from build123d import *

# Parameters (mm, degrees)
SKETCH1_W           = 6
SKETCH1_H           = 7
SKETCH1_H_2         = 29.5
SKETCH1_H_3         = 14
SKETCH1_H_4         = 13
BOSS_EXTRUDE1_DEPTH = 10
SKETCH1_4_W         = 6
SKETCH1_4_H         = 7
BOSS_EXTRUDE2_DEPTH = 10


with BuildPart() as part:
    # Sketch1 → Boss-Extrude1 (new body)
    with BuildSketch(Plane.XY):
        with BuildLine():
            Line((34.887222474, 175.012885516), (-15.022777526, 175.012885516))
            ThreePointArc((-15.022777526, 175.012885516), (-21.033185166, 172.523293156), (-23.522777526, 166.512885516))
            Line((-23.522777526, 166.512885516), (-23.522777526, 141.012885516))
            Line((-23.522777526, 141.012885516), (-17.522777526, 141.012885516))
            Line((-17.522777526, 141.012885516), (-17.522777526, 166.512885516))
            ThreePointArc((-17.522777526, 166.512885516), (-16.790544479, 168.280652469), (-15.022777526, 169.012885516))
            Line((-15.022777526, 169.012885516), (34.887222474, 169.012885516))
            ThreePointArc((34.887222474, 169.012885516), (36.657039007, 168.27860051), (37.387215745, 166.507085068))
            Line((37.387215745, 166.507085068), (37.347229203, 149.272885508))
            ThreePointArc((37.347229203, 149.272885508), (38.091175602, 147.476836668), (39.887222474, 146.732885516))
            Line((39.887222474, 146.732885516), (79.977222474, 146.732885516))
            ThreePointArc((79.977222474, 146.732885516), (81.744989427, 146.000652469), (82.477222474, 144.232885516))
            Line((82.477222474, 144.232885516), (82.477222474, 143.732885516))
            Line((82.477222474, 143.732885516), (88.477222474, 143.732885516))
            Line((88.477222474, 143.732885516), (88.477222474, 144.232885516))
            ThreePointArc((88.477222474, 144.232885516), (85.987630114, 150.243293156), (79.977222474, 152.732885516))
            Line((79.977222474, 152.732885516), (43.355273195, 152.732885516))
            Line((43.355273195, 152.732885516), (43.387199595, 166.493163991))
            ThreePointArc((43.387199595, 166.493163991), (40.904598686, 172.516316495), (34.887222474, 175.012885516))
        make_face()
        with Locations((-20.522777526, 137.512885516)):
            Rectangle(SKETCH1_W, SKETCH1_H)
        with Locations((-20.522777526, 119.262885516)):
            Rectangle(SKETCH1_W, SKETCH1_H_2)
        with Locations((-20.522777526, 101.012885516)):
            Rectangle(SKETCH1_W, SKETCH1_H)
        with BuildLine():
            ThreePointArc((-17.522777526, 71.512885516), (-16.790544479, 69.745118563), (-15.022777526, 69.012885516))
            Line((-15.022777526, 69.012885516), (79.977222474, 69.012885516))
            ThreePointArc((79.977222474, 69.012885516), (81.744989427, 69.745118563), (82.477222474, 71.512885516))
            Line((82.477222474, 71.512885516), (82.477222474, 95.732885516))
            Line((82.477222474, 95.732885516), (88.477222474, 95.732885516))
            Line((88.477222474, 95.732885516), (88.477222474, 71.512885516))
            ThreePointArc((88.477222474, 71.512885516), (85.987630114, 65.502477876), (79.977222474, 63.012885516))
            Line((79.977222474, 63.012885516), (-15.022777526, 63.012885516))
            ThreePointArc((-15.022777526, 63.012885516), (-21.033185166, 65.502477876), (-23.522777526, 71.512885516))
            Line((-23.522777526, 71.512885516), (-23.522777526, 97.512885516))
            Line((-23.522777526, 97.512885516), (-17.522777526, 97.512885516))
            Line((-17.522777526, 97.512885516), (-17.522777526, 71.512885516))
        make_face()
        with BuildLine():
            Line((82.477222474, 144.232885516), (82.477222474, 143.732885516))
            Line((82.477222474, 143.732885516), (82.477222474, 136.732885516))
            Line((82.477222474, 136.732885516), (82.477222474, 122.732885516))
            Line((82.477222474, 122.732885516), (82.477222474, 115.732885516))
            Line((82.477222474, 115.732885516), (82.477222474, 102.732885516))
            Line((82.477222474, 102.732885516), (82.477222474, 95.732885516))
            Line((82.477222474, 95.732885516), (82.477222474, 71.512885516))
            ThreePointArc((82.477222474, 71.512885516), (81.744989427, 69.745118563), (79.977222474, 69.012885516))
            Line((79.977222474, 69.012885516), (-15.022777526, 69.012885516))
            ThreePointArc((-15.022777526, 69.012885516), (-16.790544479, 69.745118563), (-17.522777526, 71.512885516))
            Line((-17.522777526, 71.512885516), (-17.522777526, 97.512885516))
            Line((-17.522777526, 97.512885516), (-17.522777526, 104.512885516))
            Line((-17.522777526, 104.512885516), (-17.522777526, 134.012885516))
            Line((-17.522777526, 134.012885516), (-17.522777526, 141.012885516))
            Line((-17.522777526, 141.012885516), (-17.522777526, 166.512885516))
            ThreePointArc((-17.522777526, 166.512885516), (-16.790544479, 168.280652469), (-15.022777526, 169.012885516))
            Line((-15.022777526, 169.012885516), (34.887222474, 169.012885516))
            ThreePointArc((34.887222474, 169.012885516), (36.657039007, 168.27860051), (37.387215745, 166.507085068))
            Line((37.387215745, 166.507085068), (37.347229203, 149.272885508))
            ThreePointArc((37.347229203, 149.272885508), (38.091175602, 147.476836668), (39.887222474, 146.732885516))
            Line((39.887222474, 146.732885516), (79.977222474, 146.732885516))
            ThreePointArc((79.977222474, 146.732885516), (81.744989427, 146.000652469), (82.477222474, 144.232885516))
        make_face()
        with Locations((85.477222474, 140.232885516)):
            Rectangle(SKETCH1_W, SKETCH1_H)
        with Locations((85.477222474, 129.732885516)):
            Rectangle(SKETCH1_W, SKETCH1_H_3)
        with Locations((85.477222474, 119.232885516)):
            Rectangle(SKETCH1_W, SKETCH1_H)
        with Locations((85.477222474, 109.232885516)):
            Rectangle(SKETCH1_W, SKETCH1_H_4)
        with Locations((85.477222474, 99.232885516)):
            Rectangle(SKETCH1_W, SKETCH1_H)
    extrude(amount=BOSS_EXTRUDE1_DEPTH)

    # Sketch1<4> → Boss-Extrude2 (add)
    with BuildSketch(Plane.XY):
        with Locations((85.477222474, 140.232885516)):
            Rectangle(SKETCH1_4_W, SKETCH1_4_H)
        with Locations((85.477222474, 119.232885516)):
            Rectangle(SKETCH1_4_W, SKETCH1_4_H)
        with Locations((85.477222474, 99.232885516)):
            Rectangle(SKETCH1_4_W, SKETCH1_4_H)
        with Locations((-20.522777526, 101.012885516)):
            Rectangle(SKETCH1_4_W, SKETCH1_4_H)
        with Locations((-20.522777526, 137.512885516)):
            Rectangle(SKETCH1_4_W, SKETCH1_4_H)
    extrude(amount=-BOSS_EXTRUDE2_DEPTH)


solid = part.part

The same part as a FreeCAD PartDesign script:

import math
import FreeCAD as App
import Part
import Sketcher
from FreeCAD import Vector
Q = App.Units.Quantity


def add_polygon(sketch, points):
    """Adds a closed chain of lines whose ends are joined by coincident constraints."""
    first, n = sketch.GeometryCount, len(points)
    for a, b in zip(points, points[1:] + points[:1]):
        sketch.addGeometry(Part.LineSegment(App.Vector(*a, 0), App.Vector(*b, 0)), False)
    for i in range(n):
        sketch.addConstraint(Sketcher.Constraint("Coincident", first + i, 2, first + (i + 1) % n, 1))

doc = App.newDocument("Part")
body = doc.addObject("PartDesign::Body", "Body")

sketch1 = body.newObject("Sketcher::SketchObject", "Sketch")
sketch1.AttachmentSupport = (doc.getObject("XY_Plane"), [""])
sketch1.MapMode = "FlatFace"
sketch1.addGeometry(Part.LineSegment(Vector(35, 175, 0), Vector(-15, 175, 0)), False)
sketch1.addGeometry(Part.ArcOfCircle(Part.Circle(Vector(-15, 167, 0), Vector(0, 0, 1), 8), math.radians(90), math.radians(180)), False)
sketch1.addGeometry(Part.LineSegment(Vector(-24, 167, 0), Vector(-24, 72, 0)), False)
sketch1.addGeometry(Part.ArcOfCircle(Part.Circle(Vector(-15, 72, 0), Vector(0, 0, 1), 8), math.radians(180), math.radians(270)), False)
sketch1.addGeometry(Part.LineSegment(Vector(-15, 63, 0), Vector(80, 63, 0)), False)
sketch1.addGeometry(Part.ArcOfCircle(Part.Circle(Vector(80, 72, 0), Vector(0, 0, 1), 8), math.radians(-90), math.radians(0)), False)
sketch1.addGeometry(Part.LineSegment(Vector(88, 72, 0), Vector(88, 144, 0)), False)
sketch1.addGeometry(Part.ArcOfCircle(Part.Circle(Vector(80, 144, 0), Vector(0, 0, 1), 8), math.radians(0), math.radians(90)), False)
sketch1.addGeometry(Part.LineSegment(Vector(80, 153, 0), Vector(43, 153, 0)), False)
sketch1.addGeometry(Part.LineSegment(Vector(43, 153, 0), Vector(43, 166, 0)), False)
sketch1.addGeometry(Part.ArcOfCircle(Part.Circle(Vector(35, 167, 0), Vector(0, 0, 1), 8), math.radians(0), math.radians(90)), False)
sketch1.addConstraint(Sketcher.Constraint("Tangent", 0, 2, 1, 1))
sketch1.addConstraint(Sketcher.Constraint("Tangent", 1, 2, 2, 1))
sketch1.addConstraint(Sketcher.Constraint("Tangent", 2, 2, 3, 1))
sketch1.addConstraint(Sketcher.Constraint("Tangent", 3, 2, 4, 1))
sketch1.addConstraint(Sketcher.Constraint("Tangent", 4, 2, 5, 1))
sketch1.addConstraint(Sketcher.Constraint("Tangent", 5, 2, 6, 1))
sketch1.addConstraint(Sketcher.Constraint("Tangent", 6, 2, 7, 1))
sketch1.addConstraint(Sketcher.Constraint("Tangent", 7, 2, 8, 1))
sketch1.addConstraint(Sketcher.Constraint("Coincident", 8, 2, 9, 1))
sketch1.addConstraint(Sketcher.Constraint("Tangent", 9, 2, 10, 1))
sketch1.addConstraint(Sketcher.Constraint("Tangent", 10, 2, 0, 1))
sketch1.addConstraint(Sketcher.Constraint("Horizontal", 0))
sketch1.addConstraint(Sketcher.Constraint("Vertical", 2))
sketch1.addConstraint(Sketcher.Constraint("Horizontal", 4))
sketch1.addConstraint(Sketcher.Constraint("Vertical", 6))
sketch1.addConstraint(Sketcher.Constraint("Horizontal", 8))
sketch1.addConstraint(Sketcher.Constraint("Equal", 1, 3))
sketch1.addConstraint(Sketcher.Constraint("Equal", 3, 5))
sketch1.addConstraint(Sketcher.Constraint("Equal", 5, 7))
sketch1.addConstraint(Sketcher.Constraint("Equal", 7, 10))
sketch1.addConstraint(Sketcher.Constraint("Equal", 4, 2))
sketch1.addConstraint(Sketcher.Constraint("Radius", 1, Q("8.5 mm")))
sketch1.addConstraint(Sketcher.Constraint("DistanceX", 4, 1, 4, 2, Q("95 mm")))
sketch1.addConstraint(Sketcher.Constraint("DistanceX", 0, 2, 0, 1, Q("49.91 mm")))
sketch1.addConstraint(Sketcher.Constraint("DistanceY", 6, 1, 6, 2, Q("72.72 mm")))
sketch1.addConstraint(Sketcher.Constraint("DistanceX", 8, 2, 8, 1, Q("36.621949 mm")))
sketch1.addConstraint(Sketcher.Constraint("DistanceX", -1, 1, 9, 2, Q("43.3872 mm")))
sketch1.addConstraint(Sketcher.Constraint("DistanceY", -1, 1, 1, 3, Q("166.512886 mm")))
pad1 = body.newObject("PartDesign::Pad", "Pad")
pad1.Profile = sketch1
pad1.Length = 10

sketch2 = body.newObject("Sketcher::SketchObject", "Sketch001")
sketch2.AttachmentSupport = (doc.getObject("XY_Plane"), [""])
sketch2.MapMode = "FlatFace"
add_polygon(sketch2, [(82, 144), (82, 137), (88, 137), (88, 144)])
add_polygon(sketch2, [(82, 123), (82, 116), (88, 116), (88, 123)])
add_polygon(sketch2, [(82, 103), (82, 96), (88, 96), (88, 103)])
add_polygon(sketch2, [(-24, 105), (-24, 98), (-18, 98), (-18, 105)])
add_polygon(sketch2, [(-24, 141), (-24, 134), (-18, 134), (-18, 141)])
sketch2.addConstraint(Sketcher.Constraint("Vertical", 0))
sketch2.addConstraint(Sketcher.Constraint("Horizontal", 1))
sketch2.addConstraint(Sketcher.Constraint("Vertical", 2))
sketch2.addConstraint(Sketcher.Constraint("Horizontal", 3))
sketch2.addConstraint(Sketcher.Constraint("Vertical", 4))
sketch2.addConstraint(Sketcher.Constraint("Horizontal", 5))
sketch2.addConstraint(Sketcher.Constraint("Vertical", 6))
sketch2.addConstraint(Sketcher.Constraint("Horizontal", 7))
sketch2.addConstraint(Sketcher.Constraint("Vertical", 8))
sketch2.addConstraint(Sketcher.Constraint("Horizontal", 9))
sketch2.addConstraint(Sketcher.Constraint("Vertical", 10))
sketch2.addConstraint(Sketcher.Constraint("Horizontal", 11))
sketch2.addConstraint(Sketcher.Constraint("Vertical", 12))
sketch2.addConstraint(Sketcher.Constraint("Horizontal", 13))
sketch2.addConstraint(Sketcher.Constraint("Vertical", 14))
sketch2.addConstraint(Sketcher.Constraint("Horizontal", 15))
sketch2.addConstraint(Sketcher.Constraint("Vertical", 16))
sketch2.addConstraint(Sketcher.Constraint("Horizontal", 17))
sketch2.addConstraint(Sketcher.Constraint("Vertical", 18))
sketch2.addConstraint(Sketcher.Constraint("Horizontal", 19))
sketch2.addConstraint(Sketcher.Constraint("Vertical", 3, 2, 4, 2))
sketch2.addConstraint(Sketcher.Constraint("Vertical", 2, 2, 5, 2))
sketch2.addConstraint(Sketcher.Constraint("Vertical", 7, 2, 8, 2))
sketch2.addConstraint(Sketcher.Constraint("Vertical", 6, 2, 9, 2))
sketch2.addConstraint(Sketcher.Constraint("Vertical", 15, 2, 16, 2))
sketch2.addConstraint(Sketcher.Constraint("Vertical", 14, 2, 17, 2))
sketch2.addConstraint(Sketcher.Constraint("Equal", 11, 13))
sketch2.addConstraint(Sketcher.Constraint("Equal", 2, 4))
sketch2.addConstraint(Sketcher.Constraint("Equal", 6, 8))
sketch2.addConstraint(Sketcher.Constraint("Equal", 10, 12))
sketch2.addConstraint(Sketcher.Constraint("Equal", 14, 16))
sketch2.addConstraint(Sketcher.Constraint("DistanceX", 1, 1, 1, 2, Q("6 mm")))
sketch2.addConstraint(Sketcher.Constraint("DistanceY", 0, 2, 0, 1, Q("7 mm")))
sketch2.addConstraint(Sketcher.Constraint("DistanceY", 4, 2, 0, 2, Q("21 mm")))
sketch2.addConstraint(Sketcher.Constraint("DistanceY", 8, 2, 4, 2, Q("20 mm")))
sketch2.addConstraint(Sketcher.Constraint("DistanceX", 12, 2, 8, 2, Q("106 mm")))
sketch2.addConstraint(Sketcher.Constraint("DistanceY", 15, 2, 16, 2, Q("29.5 mm")))
sketch2.addConstraint(Sketcher.Constraint("DistanceY", 8, 2, 12, 2, Q("1.78 mm")))
sketch2.addConstraint(Sketcher.Constraint("DistanceX", -1, 1, 0, 2, Q("82.477222 mm")))
sketch2.addConstraint(Sketcher.Constraint("DistanceY", -1, 1, 0, 2, Q("136.732886 mm")))
pad2 = body.newObject("PartDesign::Pad", "Pad001")
pad2.Profile = sketch2
pad2.Length = 10
pad2.Reversed = True

doc.recompute()
